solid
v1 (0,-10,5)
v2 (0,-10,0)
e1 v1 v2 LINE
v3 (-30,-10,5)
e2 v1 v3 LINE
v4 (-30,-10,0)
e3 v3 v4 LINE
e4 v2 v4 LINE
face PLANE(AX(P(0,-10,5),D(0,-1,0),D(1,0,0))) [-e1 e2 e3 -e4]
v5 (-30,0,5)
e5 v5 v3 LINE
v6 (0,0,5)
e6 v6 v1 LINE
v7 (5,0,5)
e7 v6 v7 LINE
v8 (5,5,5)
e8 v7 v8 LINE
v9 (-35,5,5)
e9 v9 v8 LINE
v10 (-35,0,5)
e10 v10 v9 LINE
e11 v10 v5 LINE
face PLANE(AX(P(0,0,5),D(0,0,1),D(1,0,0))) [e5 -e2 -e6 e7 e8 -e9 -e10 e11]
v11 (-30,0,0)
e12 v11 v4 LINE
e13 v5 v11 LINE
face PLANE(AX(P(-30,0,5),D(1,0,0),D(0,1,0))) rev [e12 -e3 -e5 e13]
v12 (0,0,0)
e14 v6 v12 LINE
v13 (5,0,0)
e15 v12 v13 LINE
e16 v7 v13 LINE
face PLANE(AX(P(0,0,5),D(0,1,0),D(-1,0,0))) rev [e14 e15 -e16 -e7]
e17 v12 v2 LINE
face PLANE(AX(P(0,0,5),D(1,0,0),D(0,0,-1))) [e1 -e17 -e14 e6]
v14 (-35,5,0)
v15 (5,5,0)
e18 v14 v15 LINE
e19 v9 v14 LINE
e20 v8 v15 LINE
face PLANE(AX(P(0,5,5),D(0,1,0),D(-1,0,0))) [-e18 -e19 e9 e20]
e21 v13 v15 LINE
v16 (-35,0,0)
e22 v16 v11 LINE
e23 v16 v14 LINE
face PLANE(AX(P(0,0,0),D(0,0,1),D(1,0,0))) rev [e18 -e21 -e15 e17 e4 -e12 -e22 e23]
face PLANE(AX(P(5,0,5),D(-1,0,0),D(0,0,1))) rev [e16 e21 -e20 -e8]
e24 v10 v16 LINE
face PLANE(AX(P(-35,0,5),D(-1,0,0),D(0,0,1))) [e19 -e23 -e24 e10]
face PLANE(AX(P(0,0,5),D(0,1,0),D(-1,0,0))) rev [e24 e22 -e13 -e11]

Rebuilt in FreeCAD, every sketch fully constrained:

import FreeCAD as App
import Part
import Sketcher
Q = App.Units.Quantity

doc = App.newDocument("Part")
body = doc.addObject("PartDesign::Body", "Body")

sketch1 = body.newObject("Sketcher::SketchObject", "Sketch")
sketch1.AttachmentSupport = (doc.getObject("XY_Plane"), [""])
sketch1.MapMode = "FlatFace"
sketch1.addGeometry(Part.LineSegment(App.Vector(-30, 0, 0), App.Vector(-30, -10, 0)), False)
sketch1.addGeometry(Part.LineSegment(App.Vector(-30, -10, 0), App.Vector(0, -10, 0)), False)
sketch1.addGeometry(Part.LineSegment(App.Vector(0, -10, 0), App.Vector(0, 0, 0)), False)
sketch1.addGeometry(Part.LineSegment(App.Vector(0, 0, 0), App.Vector(5, 0, 0)), False)
sketch1.addGeometry(Part.LineSegment(App.Vector(5, 0, 0), App.Vector(5, 5, 0)), False)
sketch1.addGeometry(Part.LineSegment(App.Vector(5, 5, 0), App.Vector(-35, 5, 0)), False)
sketch1.addGeometry(Part.LineSegment(App.Vector(-35, 5, 0), App.Vector(-35, 0, 0)), False)
sketch1.addGeometry(Part.LineSegment(App.Vector(-35, 0, 0), App.Vector(-30, 0, 0)), False)
sketch1.addConstraint(Sketcher.Constraint("Coincident", 0, 2, 1, 1))
sketch1.addConstraint(Sketcher.Constraint("Coincident", 1, 2, 2, 1))
sketch1.addConstraint(Sketcher.Constraint("Coincident", 2, 2, 3, 1))
sketch1.addConstraint(Sketcher.Constraint("Coincident", 3, 2, 4, 1))
sketch1.addConstraint(Sketcher.Constraint("Coincident", 4, 2, 5, 1))
sketch1.addConstraint(Sketcher.Constraint("Coincident", 5, 2, 6, 1))
sketch1.addConstraint(Sketcher.Constraint("Coincident", 6, 2, 7, 1))
sketch1.addConstraint(Sketcher.Constraint("Coincident", 7, 2, 0, 1))
sketch1.addConstraint(Sketcher.Constraint("Vertical", 0))
sketch1.addConstraint(Sketcher.Constraint("Horizontal", 1))
sketch1.addConstraint(Sketcher.Constraint("Vertical", 2))
sketch1.addConstraint(Sketcher.Constraint("Horizontal", 3))
sketch1.addConstraint(Sketcher.Constraint("Vertical", 4))
sketch1.addConstraint(Sketcher.Constraint("Horizontal", 5))
sketch1.addConstraint(Sketcher.Constraint("Vertical", 6))
sketch1.addConstraint(Sketcher.Constraint("Horizontal", 7))
sketch1.addConstraint(Sketcher.Constraint("Coincident", 2, 2, -1, 1))
sketch1.addConstraint(Sketcher.Constraint("PointOnObject", 6, 2, -1))
sketch1.addConstraint(Sketcher.Constraint("Equal", 3, 7))
sketch1.addConstraint(Sketcher.Constraint("Equal", 7, 4))
sketch1.addConstraint(Sketcher.Constraint("DistanceX", 1, 1, 1, 2, Q("30 mm")))
sketch1.addConstraint(Sketcher.Constraint("DistanceX", 3, 1, 3, 2, Q("5 mm")))
sketch1.addConstraint(Sketcher.Constraint("DistanceY", 0, 2, 0, 1, Q("10 mm")))
pad1 = body.newObject("PartDesign::Pad", "Pad")
pad1.Profile = sketch1
pad1.Length = 5

doc.recompute()
